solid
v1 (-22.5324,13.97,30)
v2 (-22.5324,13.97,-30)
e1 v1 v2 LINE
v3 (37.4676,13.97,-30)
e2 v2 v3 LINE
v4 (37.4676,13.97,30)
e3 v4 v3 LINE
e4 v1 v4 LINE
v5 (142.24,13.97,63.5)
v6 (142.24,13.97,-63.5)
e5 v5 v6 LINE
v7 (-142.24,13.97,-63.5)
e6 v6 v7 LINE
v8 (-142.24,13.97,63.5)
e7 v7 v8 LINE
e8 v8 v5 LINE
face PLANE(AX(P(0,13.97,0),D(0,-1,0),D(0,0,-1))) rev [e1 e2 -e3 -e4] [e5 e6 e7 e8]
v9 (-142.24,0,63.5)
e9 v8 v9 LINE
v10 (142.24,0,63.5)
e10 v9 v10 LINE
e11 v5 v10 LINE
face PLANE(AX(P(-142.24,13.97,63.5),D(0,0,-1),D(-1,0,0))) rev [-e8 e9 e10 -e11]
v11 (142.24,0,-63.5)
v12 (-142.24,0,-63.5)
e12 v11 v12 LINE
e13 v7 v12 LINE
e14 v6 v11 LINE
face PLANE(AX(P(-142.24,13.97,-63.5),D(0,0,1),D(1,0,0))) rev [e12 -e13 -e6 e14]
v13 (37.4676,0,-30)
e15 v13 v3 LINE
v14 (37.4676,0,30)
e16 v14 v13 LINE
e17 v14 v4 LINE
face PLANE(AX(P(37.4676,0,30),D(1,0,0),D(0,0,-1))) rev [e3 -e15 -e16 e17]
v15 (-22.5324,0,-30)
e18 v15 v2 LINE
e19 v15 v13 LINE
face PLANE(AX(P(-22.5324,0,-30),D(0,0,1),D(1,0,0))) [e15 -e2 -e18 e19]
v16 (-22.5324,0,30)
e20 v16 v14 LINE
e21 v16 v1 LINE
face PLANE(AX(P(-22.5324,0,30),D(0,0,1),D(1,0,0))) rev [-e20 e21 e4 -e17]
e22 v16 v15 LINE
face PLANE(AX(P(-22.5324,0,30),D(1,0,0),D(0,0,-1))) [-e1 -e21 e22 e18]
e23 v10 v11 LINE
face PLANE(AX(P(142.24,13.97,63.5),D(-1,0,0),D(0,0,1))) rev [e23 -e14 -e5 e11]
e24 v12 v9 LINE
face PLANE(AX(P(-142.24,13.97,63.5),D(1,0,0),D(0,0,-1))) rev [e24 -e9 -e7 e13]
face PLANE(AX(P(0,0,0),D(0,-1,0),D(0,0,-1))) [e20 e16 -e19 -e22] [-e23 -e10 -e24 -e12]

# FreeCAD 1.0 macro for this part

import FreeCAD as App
import Part
import Sketcher

V = App.Vector
Q = App.Units.Quantity

doc = App.newDocument("Part")
body = doc.addObject("PartDesign::Body", "Body")

# Sketch on XZ plane
sketch1 = doc.addObject("Sketcher::SketchObject", "Sketch")
body.addObject(sketch1)
sketch1.AttachmentSupport = (doc.XZ_Plane, [""])
sketch1.MapMode = "FlatFace"
sketch1.addGeometry(Part.LineSegment(V(-142, -64, 0), V(-142, 64, 0)), False)
sketch1.addGeometry(Part.LineSegment(V(-142, 64, 0), V(142, 64, 0)), False)
sketch1.addGeometry(Part.LineSegment(V(142, 64, 0), V(142, -64, 0)), False)
sketch1.addGeometry(Part.LineSegment(V(142, -64, 0), V(-142, -64, 0)), False)
sketch1.addConstraint(Sketcher.Constraint("Coincident", 0, 2, 1, 1))
sketch1.addConstraint(Sketcher.Constraint("Coincident", 1, 2, 2, 1))
sketch1.addConstraint(Sketcher.Constraint("Coincident", 2, 2, 3, 1))
sketch1.addConstraint(Sketcher.Constraint("Coincident", 3, 2, 0, 1))
sketch1.addConstraint(Sketcher.Constraint("Vertical", 0))
sketch1.addConstraint(Sketcher.Constraint("Horizontal", 1))
sketch1.addConstraint(Sketcher.Constraint("Vertical", 2))
sketch1.addConstraint(Sketcher.Constraint("Horizontal", 3))
sketch1.addConstraint(Sketcher.Constraint("Symmetric", 0, 2, 2, 2, -1, 1))
sketch1.addConstraint(Sketcher.Constraint("DistanceY", 0, 1, 0, 2, Q("5 in")))
sketch1.addConstraint(Sketcher.Constraint("DistanceX", 1, 1, 1, 2, Q("11.2 in")))
pad1 = doc.addObject("PartDesign::Pad", "Pad")
body.addObject(pad1)
pad1.Profile = sketch1
pad1.Length = Q("0.55 in")
pad1.Reversed = True

# Sketch on XZ plane
sketch2 = doc.addObject("Sketcher::SketchObject", "Sketch001")
body.addObject(sketch2)
sketch2.AttachmentSupport = (doc.XZ_Plane, [""])
sketch2.MapMode = "FlatFace"
sketch2.AttachmentOffset = App.Placement(V(0, 0, -0.55 * 25.4), App.Rotation())
sketch2.addGeometry(Part.LineSegment(V(-23, -30, 0), V(-23, 30, 0)), False)
sketch2.addGeometry(Part.LineSegment(V(-23, 30, 0), V(37, 30, 0)), False)
sketch2.addGeometry(Part.LineSegment(V(37, 30, 0), V(37, -30, 0)), False)
sketch2.addGeometry(Part.LineSegment(V(37, -30, 0), V(-23, -30, 0)), False)
sketch2.addConstraint(Sketcher.Constraint("Coincident", 0, 2, 1, 1))
sketch2.addConstraint(Sketcher.Constraint("Coincident", 1, 2, 2, 1))
sketch2.addConstraint(Sketcher.Constraint("Coincident", 2, 2, 3, 1))
sketch2.addConstraint(Sketcher.Constraint("Coincident", 3, 2, 0, 1))
sketch2.addConstraint(Sketcher.Constraint("Vertical", 0))
sketch2.addConstraint(Sketcher.Constraint("Horizontal", 1))
sketch2.addConstraint(Sketcher.Constraint("Vertical", 2))
sketch2.addConstraint(Sketcher.Constraint("Horizontal", 3))
sketch2.addConstraint(Sketcher.Constraint("Equal", 3, 0))
sketch2.addConstraint(Sketcher.Constraint("DistanceX", 1, 1, 1, 2, 60.0))
sketch2.addConstraint(Sketcher.Constraint("DistanceX", 0, 2, -1, 1, 22.5324))
sketch2.addConstraint(Sketcher.Constraint("DistanceY", -1, 1, 0, 2, 30.0))
pocket1 = doc.addObject("PartDesign::Pocket", "Pocket")
body.addObject(pocket1)
pocket1.Profile = sketch2
pocket1.Type = "ThroughAll"
pocket1.Reversed = True

doc.recompute()
